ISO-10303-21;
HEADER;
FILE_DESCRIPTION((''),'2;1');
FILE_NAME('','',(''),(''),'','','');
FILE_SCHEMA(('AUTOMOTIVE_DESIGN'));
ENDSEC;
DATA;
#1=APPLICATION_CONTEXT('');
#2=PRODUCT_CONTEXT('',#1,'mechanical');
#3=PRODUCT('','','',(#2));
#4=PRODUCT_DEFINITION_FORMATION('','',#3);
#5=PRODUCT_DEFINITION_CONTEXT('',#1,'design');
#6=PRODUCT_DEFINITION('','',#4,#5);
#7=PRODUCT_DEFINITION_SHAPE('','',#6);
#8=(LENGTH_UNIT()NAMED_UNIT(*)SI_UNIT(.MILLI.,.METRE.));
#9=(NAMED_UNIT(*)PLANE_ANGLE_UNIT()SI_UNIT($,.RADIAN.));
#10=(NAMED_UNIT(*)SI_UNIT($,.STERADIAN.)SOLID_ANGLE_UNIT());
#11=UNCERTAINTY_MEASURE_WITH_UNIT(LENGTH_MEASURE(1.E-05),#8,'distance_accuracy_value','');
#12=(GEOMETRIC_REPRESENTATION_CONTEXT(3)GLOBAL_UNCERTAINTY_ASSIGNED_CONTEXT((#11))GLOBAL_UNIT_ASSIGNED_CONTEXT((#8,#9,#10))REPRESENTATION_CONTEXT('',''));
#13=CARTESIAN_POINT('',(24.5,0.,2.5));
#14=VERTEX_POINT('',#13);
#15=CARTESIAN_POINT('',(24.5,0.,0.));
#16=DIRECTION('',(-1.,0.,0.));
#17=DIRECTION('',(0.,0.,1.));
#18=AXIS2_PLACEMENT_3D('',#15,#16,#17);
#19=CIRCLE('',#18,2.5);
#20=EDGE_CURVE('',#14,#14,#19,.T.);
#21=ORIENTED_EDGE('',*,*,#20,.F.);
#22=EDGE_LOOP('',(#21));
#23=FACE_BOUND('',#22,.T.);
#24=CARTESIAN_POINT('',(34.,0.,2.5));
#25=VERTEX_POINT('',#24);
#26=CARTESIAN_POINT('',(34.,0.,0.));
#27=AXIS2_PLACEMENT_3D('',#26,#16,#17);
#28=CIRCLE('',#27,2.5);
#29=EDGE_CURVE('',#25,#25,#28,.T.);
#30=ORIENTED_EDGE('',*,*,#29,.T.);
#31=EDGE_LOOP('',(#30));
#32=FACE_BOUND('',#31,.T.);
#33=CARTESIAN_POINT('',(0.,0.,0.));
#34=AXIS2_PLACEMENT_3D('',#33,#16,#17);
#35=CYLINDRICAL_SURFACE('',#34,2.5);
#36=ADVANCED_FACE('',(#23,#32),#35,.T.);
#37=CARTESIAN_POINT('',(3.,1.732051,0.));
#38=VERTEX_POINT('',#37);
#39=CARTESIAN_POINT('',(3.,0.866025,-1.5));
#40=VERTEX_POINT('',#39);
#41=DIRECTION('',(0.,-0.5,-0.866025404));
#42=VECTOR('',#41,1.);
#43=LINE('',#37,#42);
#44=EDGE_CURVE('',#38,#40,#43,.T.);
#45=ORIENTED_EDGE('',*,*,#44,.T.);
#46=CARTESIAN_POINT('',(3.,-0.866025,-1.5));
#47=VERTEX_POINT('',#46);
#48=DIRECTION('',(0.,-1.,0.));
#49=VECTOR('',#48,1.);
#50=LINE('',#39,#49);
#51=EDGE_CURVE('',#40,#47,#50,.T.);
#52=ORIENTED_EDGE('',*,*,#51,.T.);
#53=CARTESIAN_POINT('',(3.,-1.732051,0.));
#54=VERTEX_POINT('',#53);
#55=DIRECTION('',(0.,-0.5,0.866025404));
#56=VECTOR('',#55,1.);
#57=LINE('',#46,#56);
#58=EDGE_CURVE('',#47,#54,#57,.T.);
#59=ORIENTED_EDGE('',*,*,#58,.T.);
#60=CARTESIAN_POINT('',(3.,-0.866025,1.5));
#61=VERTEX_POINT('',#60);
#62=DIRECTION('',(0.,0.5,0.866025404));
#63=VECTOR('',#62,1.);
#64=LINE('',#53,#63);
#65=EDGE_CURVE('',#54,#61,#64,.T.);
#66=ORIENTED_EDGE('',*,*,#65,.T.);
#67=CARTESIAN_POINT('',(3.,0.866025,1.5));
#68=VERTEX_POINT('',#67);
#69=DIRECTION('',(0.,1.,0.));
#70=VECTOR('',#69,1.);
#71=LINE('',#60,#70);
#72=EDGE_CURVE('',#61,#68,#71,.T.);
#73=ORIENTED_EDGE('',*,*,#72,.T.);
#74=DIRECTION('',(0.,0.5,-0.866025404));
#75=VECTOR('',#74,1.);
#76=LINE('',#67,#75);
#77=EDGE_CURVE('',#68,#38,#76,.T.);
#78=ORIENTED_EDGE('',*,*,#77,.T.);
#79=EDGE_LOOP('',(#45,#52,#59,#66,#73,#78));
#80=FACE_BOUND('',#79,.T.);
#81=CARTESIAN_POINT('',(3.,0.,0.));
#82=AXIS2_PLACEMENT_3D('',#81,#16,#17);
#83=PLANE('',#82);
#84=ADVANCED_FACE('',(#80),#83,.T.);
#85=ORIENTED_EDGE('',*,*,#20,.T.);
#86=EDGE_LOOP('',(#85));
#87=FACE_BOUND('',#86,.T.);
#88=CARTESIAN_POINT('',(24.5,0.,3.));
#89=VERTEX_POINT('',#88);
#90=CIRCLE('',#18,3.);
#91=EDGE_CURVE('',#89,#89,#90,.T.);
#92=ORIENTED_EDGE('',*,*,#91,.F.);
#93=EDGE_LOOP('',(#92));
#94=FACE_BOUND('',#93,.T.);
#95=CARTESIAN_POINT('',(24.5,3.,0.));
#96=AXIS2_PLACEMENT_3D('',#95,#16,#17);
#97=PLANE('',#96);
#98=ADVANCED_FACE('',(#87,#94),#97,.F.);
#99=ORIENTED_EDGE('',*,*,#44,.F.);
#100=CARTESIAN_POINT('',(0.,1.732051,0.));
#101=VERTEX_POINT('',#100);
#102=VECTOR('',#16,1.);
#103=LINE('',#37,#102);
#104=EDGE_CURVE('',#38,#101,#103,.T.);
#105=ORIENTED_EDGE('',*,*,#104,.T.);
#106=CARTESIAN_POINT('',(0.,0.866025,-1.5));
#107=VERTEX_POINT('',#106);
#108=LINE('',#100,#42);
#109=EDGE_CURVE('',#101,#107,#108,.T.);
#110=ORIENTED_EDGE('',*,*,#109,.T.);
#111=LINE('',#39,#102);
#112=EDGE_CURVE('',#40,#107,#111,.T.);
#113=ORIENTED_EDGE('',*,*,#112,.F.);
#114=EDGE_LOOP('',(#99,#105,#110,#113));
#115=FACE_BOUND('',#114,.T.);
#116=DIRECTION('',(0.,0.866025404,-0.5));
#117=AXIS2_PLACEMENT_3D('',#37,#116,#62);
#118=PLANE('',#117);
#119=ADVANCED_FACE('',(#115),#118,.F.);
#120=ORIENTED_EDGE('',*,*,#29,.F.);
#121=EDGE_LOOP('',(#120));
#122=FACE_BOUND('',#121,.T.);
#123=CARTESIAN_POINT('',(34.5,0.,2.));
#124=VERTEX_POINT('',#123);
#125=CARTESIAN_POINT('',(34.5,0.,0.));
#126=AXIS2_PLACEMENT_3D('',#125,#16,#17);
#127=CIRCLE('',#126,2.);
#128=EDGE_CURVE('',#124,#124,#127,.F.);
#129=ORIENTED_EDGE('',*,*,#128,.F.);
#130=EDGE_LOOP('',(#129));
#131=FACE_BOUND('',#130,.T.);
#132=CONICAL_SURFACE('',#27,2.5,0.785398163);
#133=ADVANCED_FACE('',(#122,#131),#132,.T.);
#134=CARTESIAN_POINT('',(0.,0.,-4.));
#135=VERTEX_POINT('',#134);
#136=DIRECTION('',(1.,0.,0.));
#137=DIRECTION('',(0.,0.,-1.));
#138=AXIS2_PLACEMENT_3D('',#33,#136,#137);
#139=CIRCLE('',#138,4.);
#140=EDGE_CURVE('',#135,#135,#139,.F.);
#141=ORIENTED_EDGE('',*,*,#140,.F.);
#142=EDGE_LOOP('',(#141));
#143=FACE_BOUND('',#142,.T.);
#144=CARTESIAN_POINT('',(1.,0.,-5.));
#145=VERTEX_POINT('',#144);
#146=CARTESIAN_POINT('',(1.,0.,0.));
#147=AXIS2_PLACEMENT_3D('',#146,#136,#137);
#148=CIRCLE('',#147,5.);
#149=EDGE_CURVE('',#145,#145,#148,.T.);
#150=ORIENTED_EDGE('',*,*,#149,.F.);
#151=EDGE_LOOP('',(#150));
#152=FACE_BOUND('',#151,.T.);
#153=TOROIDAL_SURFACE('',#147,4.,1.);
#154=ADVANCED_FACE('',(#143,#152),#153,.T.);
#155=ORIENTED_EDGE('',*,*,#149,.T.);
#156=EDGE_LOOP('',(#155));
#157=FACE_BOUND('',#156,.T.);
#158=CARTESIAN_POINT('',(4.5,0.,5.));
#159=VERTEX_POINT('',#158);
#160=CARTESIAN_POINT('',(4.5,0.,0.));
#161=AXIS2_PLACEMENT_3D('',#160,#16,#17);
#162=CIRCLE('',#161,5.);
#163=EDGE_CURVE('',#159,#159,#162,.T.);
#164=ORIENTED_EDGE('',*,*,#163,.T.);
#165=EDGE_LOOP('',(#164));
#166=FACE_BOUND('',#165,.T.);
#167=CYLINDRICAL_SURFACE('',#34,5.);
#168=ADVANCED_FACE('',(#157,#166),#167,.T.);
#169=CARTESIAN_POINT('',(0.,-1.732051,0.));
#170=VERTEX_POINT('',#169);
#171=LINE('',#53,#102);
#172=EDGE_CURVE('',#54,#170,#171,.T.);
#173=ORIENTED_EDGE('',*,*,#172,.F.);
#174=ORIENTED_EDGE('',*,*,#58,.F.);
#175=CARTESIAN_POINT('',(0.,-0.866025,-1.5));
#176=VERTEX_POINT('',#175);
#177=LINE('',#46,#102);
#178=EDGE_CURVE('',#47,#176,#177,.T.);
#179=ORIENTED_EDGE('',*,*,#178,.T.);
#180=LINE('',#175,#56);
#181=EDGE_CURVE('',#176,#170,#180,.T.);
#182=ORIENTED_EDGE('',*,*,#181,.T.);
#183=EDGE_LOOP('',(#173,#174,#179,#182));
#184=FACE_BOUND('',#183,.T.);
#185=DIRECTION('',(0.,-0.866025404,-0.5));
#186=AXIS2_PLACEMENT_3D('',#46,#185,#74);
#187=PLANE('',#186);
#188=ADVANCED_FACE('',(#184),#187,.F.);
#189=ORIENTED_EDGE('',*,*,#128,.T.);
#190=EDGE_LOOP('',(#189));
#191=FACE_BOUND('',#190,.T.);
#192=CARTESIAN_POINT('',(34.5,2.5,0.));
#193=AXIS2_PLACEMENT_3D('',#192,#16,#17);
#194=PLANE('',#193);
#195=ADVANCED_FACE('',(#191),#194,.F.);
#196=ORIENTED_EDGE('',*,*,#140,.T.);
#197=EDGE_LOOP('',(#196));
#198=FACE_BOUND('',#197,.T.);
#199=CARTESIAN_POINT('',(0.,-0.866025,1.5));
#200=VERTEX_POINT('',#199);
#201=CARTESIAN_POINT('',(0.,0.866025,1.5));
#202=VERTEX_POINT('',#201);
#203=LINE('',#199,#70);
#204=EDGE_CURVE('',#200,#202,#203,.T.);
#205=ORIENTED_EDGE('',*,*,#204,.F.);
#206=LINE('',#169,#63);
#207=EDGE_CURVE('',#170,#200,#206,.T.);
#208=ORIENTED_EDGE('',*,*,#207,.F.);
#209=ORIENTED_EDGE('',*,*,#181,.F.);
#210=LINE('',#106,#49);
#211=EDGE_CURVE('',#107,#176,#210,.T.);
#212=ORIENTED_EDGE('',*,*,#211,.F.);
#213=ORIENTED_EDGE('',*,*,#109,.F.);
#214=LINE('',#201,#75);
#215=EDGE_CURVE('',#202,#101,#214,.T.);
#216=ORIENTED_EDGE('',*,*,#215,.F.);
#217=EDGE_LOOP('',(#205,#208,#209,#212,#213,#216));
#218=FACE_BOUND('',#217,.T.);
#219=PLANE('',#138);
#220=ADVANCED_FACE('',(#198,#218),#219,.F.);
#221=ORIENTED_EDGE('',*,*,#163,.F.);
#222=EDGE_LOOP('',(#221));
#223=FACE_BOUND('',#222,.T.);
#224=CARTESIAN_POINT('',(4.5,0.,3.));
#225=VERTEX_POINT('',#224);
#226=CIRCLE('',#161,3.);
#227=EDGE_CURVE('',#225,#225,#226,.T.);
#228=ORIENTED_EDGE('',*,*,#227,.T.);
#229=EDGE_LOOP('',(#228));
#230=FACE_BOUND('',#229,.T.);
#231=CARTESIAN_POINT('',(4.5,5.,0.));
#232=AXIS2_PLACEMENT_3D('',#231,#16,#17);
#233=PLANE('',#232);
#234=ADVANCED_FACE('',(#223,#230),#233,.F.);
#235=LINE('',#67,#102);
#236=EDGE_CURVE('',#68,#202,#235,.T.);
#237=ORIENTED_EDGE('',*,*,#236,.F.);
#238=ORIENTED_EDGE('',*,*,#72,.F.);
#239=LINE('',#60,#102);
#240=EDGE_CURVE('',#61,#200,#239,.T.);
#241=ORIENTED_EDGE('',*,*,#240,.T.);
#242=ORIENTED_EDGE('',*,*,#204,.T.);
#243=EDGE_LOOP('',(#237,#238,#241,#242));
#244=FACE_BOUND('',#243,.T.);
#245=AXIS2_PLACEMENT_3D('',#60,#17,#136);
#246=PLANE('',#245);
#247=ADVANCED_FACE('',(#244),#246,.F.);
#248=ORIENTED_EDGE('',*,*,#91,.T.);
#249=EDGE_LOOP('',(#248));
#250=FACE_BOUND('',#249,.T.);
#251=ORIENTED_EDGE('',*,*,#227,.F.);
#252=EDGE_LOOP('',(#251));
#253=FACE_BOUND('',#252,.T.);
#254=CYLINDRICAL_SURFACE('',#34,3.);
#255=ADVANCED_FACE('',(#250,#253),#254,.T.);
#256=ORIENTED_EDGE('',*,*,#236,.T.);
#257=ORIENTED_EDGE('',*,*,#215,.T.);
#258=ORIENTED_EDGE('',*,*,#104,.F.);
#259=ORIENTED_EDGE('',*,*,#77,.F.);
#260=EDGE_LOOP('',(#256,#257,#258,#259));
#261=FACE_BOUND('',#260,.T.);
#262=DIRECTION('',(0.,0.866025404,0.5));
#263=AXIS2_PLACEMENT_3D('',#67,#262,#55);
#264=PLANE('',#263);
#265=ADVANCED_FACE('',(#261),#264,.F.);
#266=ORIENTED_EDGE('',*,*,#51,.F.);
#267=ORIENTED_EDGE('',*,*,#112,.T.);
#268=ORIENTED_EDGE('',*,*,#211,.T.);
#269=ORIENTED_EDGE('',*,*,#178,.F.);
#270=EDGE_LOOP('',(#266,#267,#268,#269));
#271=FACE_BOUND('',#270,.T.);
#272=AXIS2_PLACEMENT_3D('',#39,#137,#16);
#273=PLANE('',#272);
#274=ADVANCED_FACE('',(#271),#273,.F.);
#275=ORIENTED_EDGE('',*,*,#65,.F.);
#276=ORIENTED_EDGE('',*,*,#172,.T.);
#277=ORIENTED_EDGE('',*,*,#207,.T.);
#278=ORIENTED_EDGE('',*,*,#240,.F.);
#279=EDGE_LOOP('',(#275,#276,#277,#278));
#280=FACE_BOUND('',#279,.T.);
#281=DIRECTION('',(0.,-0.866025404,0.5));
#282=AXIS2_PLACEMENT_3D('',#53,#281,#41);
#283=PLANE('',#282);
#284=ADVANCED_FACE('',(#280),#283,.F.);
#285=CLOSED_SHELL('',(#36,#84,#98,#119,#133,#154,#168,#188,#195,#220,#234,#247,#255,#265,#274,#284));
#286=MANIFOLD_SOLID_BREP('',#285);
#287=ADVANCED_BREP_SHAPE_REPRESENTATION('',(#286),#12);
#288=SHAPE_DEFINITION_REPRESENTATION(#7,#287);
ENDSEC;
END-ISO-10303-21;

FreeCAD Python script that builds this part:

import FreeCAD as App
import Part
import Sketcher
Q = App.Units.Quantity


def edges_at(feature, points):
    """Names of the edges that pass closest to the given points."""
    edges = feature.Shape.Edges
    near = lambda p: min(range(len(edges)), key=lambda i: edges[i].distToShape(Part.Vertex(*p))[0])
    return sorted({f"Edge{near(p) + 1}" for p in points})

doc = App.newDocument("Part")
body = doc.addObject("PartDesign::Body", "Body")

# Sketch on XY plane
sketch1 = doc.addObject("Sketcher::SketchObject", "Sketch")
body.addObject(sketch1)
sketch1.AttachmentSupport = (doc.XY_Plane, [""])
sketch1.MapMode = "FlatFace"
sketch1.addGeometry([
    Part.LineSegment(App.Vector(0, 5, 0), App.Vector(0, 0, 0)),  # 0
    Part.LineSegment(App.Vector(0, 0, 0), App.Vector(34.5, 0, 0)),  # 1
    Part.LineSegment(App.Vector(34.5, 0, 0), App.Vector(34.5, 2.5, 0)),  # 2
    Part.LineSegment(App.Vector(34.5, 2.5, 0), App.Vector(24.5, 2.5, 0)),  # 3
    Part.LineSegment(App.Vector(24.5, 2.5, 0), App.Vector(24.5, 3, 0)),  # 4
    Part.LineSegment(App.Vector(24.5, 3, 0), App.Vector(4.5, 3, 0)),  # 5
    Part.LineSegment(App.Vector(4.5, 3, 0), App.Vector(4.5, 5, 0)),  # 6
    Part.LineSegment(App.Vector(4.5, 5, 0), App.Vector(0, 5, 0)),  # 7
], False)
sketch1.addConstraint([
    Sketcher.Constraint("Coincident", 0, 2, 1, 1),
    Sketcher.Constraint("Coincident", 1, 2, 2, 1),
    Sketcher.Constraint("Coincident", 2, 2, 3, 1),
    Sketcher.Constraint("Coincident", 3, 2, 4, 1),
    Sketcher.Constraint("Coincident", 4, 2, 5, 1),
    Sketcher.Constraint("Coincident", 5, 2, 6, 1),
    Sketcher.Constraint("Coincident", 6, 2, 7, 1),
    Sketcher.Constraint("Coincident", 7, 2, 0, 1),
    Sketcher.Constraint("Vertical", 0),
    Sketcher.Constraint("Horizontal", 1),
    Sketcher.Constraint("Vertical", 2),
    Sketcher.Constraint("Horizontal", 3),
    Sketcher.Constraint("Vertical", 4),
    Sketcher.Constraint("Horizontal", 5),
    Sketcher.Constraint("Vertical", 6),
    Sketcher.Constraint("Horizontal", 7),
    Sketcher.Constraint("Coincident", 0, 2, -1, 1),
    Sketcher.Constraint("DistanceX", 3, 2, 3, 1, Q("10 mm")),
    Sketcher.Constraint("DistanceX", 5, 2, 5, 1, Q("20 mm")),
    Sketcher.Constraint("DistanceY", 0, 2, 0, 1, Q("5 mm")),
    Sketcher.Constraint("DistanceY", 6, 1, 6, 2, Q("2 mm")),
    Sketcher.Constraint("DistanceX", 1, 1, 1, 2, Q("34.5 mm")),
    Sketcher.Constraint("DistanceY", 2, 1, 2, 2, Q("2.5 mm")),
])
revolution = doc.addObject("PartDesign::Revolution", "Revolution")
body.addObject(revolution)
revolution.Profile = sketch1
revolution.ReferenceAxis = (sketch1, ["H_Axis"])
revolution.Angle = 360

# Sketch on YZ plane
sketch2 = doc.addObject("Sketcher::SketchObject", "Sketch001")
body.addObject(sketch2)
sketch2.AttachmentSupport = (doc.YZ_Plane, [""])
sketch2.MapMode = "FlatFace"
sketch2.addGeometry([
    Part.LineSegment(App.Vector(1.7, 0, 0), App.Vector(0.9, -1.5, 0)),  # 0
    Part.LineSegment(App.Vector(0.9, -1.5, 0), App.Vector(-0.9, -1.5, 0)),  # 1
    Part.LineSegment(App.Vector(-0.9, -1.5, 0), App.Vector(-1.7, 0, 0)),  # 2
    Part.LineSegment(App.Vector(-1.7, 0, 0), App.Vector(-0.9, 1.5, 0)),  # 3
    Part.LineSegment(App.Vector(-0.9, 1.5, 0), App.Vector(0.9, 1.5, 0)),  # 4
    Part.LineSegment(App.Vector(0.9, 1.5, 0), App.Vector(1.7, 0, 0)),  # 5
], False)
sketch2.addConstraint([
    Sketcher.Constraint("Coincident", 0, 2, 1, 1),
    Sketcher.Constraint("Coincident", 1, 2, 2, 1),
    Sketcher.Constraint("Coincident", 2, 2, 3, 1),
    Sketcher.Constraint("Coincident", 3, 2, 4, 1),
    Sketcher.Constraint("Coincident", 4, 2, 5, 1),
    Sketcher.Constraint("Coincident", 5, 2, 0, 1),
    Sketcher.Constraint("Horizontal", 1),
    Sketcher.Constraint("Horizontal", 4),
    Sketcher.Constraint("Symmetric", 0, 2, 3, 2, -1, 1),
    Sketcher.Constraint("Symmetric", 2, 2, 5, 2, -1, 1),
    Sketcher.Constraint("PointOnObject", 2, 2, -1),
    Sketcher.Constraint("Parallel", 2, 5),
    Sketcher.Constraint("Vertical", 1, 2, 3, 2),
    Sketcher.Constraint("Angle", 0, Q("-120 deg")),
    Sketcher.Constraint("DistanceY", 1, 2, 3, 2, Q("3 mm")),
    Sketcher.Constraint("DistanceX", 1, 2, 1, 1, Q("1.732051 mm")),
])
pocket1 = doc.addObject("PartDesign::Pocket", "Pocket")
body.addObject(pocket1)
pocket1.Profile = sketch2
pocket1.Length = 3
pocket1.Reversed = True
doc.recompute()

fillet = doc.addObject("PartDesign::Fillet", "Fillet")
body.addObject(fillet)
fillet.Base = (pocket1, edges_at(pocket1, [(0, 0, -5)]))
fillet.Radius = 1
doc.recompute()

chamfer = doc.addObject("PartDesign::Chamfer", "Chamfer")
body.addObject(chamfer)
chamfer.Base = (fillet, edges_at(fillet, [(34.5, 0, -2.5)]))
chamfer.Size = 0.5

doc.recompute()
